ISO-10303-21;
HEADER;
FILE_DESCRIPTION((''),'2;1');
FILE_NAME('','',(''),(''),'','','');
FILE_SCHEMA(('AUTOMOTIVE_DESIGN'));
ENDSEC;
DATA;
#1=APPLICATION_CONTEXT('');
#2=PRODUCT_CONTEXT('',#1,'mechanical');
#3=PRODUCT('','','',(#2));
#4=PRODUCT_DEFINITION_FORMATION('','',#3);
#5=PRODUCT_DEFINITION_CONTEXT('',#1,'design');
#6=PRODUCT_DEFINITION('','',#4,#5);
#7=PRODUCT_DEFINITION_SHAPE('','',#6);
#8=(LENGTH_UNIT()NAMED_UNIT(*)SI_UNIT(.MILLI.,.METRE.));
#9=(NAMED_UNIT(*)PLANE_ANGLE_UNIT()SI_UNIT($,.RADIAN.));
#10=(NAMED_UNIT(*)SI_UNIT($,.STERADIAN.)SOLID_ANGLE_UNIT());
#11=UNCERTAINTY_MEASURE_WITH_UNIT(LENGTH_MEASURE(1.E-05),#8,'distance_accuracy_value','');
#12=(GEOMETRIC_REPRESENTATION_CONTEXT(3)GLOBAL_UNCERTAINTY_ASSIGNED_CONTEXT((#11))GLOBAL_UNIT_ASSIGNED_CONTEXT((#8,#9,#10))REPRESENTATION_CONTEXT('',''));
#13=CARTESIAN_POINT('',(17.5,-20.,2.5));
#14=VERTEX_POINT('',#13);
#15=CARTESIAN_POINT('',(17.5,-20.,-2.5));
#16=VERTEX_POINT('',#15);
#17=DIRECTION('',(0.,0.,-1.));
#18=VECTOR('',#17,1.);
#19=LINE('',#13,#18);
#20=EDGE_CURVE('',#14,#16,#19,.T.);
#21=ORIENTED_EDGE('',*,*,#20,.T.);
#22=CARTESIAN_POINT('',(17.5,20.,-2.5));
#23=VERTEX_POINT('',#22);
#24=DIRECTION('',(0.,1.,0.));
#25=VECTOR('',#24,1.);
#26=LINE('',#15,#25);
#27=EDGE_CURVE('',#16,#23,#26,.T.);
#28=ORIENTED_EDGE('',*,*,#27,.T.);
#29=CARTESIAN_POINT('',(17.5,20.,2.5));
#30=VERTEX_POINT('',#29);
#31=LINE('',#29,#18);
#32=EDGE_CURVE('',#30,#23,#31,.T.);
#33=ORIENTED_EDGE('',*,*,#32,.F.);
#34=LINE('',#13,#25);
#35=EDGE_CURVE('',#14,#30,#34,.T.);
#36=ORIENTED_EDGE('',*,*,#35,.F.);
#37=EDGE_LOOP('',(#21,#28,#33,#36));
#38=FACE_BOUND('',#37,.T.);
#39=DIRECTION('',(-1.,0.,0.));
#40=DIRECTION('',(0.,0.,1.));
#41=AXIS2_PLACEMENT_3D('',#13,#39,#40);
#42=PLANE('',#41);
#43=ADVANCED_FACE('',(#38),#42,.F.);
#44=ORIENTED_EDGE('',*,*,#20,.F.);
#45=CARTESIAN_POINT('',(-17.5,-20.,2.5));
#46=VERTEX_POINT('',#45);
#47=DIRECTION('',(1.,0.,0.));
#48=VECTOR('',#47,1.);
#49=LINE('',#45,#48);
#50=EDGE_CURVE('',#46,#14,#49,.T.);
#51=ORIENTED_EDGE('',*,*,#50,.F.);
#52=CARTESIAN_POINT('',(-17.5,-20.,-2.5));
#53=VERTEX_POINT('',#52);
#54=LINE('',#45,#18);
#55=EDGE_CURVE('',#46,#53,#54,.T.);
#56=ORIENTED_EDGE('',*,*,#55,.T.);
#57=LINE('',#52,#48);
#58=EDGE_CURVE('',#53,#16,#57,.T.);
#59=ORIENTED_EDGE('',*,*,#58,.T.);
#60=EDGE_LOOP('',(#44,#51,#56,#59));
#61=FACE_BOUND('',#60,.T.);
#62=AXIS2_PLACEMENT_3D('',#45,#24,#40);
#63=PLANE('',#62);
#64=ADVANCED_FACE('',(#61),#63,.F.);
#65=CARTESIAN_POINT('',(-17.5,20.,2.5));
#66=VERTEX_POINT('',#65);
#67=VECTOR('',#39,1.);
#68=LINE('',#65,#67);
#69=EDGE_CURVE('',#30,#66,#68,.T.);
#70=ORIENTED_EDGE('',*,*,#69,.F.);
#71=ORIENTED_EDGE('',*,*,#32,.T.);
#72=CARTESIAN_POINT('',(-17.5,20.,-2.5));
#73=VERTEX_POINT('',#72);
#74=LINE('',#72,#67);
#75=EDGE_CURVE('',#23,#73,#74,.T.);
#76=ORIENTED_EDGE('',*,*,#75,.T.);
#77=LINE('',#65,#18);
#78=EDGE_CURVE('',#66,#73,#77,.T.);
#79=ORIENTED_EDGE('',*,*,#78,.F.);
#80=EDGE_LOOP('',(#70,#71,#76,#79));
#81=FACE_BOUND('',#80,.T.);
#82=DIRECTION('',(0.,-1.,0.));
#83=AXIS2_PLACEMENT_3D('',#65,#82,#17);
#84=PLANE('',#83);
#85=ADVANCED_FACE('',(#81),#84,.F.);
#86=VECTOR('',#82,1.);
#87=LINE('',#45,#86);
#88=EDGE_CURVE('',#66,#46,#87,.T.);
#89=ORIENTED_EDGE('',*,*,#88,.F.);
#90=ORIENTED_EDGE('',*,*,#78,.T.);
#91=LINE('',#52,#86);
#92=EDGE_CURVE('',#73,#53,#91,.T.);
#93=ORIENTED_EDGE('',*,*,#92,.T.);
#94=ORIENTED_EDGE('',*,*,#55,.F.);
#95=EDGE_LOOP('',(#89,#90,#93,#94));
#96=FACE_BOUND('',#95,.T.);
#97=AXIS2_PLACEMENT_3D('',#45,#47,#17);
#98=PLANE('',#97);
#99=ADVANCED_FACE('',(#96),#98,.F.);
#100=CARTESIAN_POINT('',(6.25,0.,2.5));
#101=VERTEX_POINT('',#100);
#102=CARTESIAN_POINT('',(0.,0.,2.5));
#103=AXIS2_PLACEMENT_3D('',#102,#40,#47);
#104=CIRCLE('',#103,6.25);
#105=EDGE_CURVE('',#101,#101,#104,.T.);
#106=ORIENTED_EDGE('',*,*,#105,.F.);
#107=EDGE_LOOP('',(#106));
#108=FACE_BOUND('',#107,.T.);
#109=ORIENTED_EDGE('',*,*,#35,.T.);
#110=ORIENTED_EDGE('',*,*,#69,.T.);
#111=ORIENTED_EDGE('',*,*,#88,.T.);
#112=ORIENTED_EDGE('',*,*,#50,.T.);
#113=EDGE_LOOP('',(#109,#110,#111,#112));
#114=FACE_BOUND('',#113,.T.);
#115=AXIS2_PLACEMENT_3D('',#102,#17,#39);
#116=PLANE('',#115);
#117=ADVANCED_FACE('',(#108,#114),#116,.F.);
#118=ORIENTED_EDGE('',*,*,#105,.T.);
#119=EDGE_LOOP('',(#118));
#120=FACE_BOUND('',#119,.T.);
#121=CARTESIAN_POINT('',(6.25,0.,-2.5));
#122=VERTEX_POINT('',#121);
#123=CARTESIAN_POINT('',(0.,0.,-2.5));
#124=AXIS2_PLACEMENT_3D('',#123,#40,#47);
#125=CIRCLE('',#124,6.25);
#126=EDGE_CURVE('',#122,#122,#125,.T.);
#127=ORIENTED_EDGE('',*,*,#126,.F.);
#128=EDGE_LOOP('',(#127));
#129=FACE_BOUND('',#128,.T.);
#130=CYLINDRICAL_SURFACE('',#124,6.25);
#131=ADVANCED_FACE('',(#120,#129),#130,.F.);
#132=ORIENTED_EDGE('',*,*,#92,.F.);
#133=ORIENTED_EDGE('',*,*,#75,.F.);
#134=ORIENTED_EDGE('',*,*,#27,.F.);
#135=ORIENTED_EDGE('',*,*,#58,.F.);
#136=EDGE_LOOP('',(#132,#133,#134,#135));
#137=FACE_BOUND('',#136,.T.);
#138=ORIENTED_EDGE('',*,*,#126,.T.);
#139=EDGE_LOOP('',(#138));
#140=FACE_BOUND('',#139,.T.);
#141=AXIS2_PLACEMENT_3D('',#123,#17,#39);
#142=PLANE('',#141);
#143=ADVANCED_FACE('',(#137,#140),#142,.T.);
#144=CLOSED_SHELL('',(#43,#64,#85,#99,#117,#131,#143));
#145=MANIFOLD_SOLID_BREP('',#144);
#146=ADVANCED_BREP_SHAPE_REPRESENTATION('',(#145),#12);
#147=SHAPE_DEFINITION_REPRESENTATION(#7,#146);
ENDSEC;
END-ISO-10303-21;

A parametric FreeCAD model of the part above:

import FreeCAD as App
import Part
import Sketcher

V = App.Vector
Q = App.Units.Quantity

doc = App.newDocument("Part")
body = doc.addObject("PartDesign::Body", "Body")

sketch1 = body.newObject("Sketcher::SketchObject", "Sketch")
sketch1.AttachmentSupport = (doc.getObject("XY_Plane"), [""])
sketch1.MapMode = "FlatFace"
sketch1.addGeometry([
    Part.LineSegment(V(-18, 20, 0), V(-18, -20, 0)),
    Part.LineSegment(V(-18, -20, 0), V(18, -20, 0)),
    Part.LineSegment(V(18, -20, 0), V(18, 20, 0)),
    Part.LineSegment(V(18, 20, 0), V(-18, 20, 0)),
], False)
sketch1.addConstraint([
    Sketcher.Constraint("Coincident", 0, 2, 1, 1),
    Sketcher.Constraint("Coincident", 1, 2, 2, 1),
    Sketcher.Constraint("Coincident", 2, 2, 3, 1),
    Sketcher.Constraint("Coincident", 3, 2, 0, 1),
    Sketcher.Constraint("Vertical", 0),
    Sketcher.Constraint("Horizontal", 1),
    Sketcher.Constraint("Vertical", 2),
    Sketcher.Constraint("Horizontal", 3),
    Sketcher.Constraint("Symmetric", 0, 2, 2, 2, -1, 1),
    Sketcher.Constraint("DistanceX", 1, 1, 1, 2, Q("35 mm")),
    Sketcher.Constraint("DistanceY", 0, 2, 0, 1, Q("40 mm")),
])
pad1 = body.newObject("PartDesign::Pad", "Pad")
pad1.Profile = sketch1
pad1.Length = 5
pad1.Midplane = True

sketch2 = body.newObject("Sketcher::SketchObject", "Sketch001")
sketch2.AttachmentSupport = (doc.getObject("XY_Plane"), [""])
sketch2.MapMode = "FlatFace"
sketch2.AttachmentOffset = App.Placement(V(0, 0, 2.5), App.Rotation())
sketch2.addGeometry(Part.Circle(V(0, 0, 0), V(0, 0, 1), 6), False)
sketch2.addConstraint([
    Sketcher.Constraint("Coincident", 0, 3, -1, 1),
    Sketcher.Constraint("Diameter", 0, Q("12.5 mm")),
])
pocket1 = body.newObject("PartDesign::Pocket", "Pocket")
pocket1.Profile = sketch2
pocket1.Type = "ThroughAll"

doc.recompute()
